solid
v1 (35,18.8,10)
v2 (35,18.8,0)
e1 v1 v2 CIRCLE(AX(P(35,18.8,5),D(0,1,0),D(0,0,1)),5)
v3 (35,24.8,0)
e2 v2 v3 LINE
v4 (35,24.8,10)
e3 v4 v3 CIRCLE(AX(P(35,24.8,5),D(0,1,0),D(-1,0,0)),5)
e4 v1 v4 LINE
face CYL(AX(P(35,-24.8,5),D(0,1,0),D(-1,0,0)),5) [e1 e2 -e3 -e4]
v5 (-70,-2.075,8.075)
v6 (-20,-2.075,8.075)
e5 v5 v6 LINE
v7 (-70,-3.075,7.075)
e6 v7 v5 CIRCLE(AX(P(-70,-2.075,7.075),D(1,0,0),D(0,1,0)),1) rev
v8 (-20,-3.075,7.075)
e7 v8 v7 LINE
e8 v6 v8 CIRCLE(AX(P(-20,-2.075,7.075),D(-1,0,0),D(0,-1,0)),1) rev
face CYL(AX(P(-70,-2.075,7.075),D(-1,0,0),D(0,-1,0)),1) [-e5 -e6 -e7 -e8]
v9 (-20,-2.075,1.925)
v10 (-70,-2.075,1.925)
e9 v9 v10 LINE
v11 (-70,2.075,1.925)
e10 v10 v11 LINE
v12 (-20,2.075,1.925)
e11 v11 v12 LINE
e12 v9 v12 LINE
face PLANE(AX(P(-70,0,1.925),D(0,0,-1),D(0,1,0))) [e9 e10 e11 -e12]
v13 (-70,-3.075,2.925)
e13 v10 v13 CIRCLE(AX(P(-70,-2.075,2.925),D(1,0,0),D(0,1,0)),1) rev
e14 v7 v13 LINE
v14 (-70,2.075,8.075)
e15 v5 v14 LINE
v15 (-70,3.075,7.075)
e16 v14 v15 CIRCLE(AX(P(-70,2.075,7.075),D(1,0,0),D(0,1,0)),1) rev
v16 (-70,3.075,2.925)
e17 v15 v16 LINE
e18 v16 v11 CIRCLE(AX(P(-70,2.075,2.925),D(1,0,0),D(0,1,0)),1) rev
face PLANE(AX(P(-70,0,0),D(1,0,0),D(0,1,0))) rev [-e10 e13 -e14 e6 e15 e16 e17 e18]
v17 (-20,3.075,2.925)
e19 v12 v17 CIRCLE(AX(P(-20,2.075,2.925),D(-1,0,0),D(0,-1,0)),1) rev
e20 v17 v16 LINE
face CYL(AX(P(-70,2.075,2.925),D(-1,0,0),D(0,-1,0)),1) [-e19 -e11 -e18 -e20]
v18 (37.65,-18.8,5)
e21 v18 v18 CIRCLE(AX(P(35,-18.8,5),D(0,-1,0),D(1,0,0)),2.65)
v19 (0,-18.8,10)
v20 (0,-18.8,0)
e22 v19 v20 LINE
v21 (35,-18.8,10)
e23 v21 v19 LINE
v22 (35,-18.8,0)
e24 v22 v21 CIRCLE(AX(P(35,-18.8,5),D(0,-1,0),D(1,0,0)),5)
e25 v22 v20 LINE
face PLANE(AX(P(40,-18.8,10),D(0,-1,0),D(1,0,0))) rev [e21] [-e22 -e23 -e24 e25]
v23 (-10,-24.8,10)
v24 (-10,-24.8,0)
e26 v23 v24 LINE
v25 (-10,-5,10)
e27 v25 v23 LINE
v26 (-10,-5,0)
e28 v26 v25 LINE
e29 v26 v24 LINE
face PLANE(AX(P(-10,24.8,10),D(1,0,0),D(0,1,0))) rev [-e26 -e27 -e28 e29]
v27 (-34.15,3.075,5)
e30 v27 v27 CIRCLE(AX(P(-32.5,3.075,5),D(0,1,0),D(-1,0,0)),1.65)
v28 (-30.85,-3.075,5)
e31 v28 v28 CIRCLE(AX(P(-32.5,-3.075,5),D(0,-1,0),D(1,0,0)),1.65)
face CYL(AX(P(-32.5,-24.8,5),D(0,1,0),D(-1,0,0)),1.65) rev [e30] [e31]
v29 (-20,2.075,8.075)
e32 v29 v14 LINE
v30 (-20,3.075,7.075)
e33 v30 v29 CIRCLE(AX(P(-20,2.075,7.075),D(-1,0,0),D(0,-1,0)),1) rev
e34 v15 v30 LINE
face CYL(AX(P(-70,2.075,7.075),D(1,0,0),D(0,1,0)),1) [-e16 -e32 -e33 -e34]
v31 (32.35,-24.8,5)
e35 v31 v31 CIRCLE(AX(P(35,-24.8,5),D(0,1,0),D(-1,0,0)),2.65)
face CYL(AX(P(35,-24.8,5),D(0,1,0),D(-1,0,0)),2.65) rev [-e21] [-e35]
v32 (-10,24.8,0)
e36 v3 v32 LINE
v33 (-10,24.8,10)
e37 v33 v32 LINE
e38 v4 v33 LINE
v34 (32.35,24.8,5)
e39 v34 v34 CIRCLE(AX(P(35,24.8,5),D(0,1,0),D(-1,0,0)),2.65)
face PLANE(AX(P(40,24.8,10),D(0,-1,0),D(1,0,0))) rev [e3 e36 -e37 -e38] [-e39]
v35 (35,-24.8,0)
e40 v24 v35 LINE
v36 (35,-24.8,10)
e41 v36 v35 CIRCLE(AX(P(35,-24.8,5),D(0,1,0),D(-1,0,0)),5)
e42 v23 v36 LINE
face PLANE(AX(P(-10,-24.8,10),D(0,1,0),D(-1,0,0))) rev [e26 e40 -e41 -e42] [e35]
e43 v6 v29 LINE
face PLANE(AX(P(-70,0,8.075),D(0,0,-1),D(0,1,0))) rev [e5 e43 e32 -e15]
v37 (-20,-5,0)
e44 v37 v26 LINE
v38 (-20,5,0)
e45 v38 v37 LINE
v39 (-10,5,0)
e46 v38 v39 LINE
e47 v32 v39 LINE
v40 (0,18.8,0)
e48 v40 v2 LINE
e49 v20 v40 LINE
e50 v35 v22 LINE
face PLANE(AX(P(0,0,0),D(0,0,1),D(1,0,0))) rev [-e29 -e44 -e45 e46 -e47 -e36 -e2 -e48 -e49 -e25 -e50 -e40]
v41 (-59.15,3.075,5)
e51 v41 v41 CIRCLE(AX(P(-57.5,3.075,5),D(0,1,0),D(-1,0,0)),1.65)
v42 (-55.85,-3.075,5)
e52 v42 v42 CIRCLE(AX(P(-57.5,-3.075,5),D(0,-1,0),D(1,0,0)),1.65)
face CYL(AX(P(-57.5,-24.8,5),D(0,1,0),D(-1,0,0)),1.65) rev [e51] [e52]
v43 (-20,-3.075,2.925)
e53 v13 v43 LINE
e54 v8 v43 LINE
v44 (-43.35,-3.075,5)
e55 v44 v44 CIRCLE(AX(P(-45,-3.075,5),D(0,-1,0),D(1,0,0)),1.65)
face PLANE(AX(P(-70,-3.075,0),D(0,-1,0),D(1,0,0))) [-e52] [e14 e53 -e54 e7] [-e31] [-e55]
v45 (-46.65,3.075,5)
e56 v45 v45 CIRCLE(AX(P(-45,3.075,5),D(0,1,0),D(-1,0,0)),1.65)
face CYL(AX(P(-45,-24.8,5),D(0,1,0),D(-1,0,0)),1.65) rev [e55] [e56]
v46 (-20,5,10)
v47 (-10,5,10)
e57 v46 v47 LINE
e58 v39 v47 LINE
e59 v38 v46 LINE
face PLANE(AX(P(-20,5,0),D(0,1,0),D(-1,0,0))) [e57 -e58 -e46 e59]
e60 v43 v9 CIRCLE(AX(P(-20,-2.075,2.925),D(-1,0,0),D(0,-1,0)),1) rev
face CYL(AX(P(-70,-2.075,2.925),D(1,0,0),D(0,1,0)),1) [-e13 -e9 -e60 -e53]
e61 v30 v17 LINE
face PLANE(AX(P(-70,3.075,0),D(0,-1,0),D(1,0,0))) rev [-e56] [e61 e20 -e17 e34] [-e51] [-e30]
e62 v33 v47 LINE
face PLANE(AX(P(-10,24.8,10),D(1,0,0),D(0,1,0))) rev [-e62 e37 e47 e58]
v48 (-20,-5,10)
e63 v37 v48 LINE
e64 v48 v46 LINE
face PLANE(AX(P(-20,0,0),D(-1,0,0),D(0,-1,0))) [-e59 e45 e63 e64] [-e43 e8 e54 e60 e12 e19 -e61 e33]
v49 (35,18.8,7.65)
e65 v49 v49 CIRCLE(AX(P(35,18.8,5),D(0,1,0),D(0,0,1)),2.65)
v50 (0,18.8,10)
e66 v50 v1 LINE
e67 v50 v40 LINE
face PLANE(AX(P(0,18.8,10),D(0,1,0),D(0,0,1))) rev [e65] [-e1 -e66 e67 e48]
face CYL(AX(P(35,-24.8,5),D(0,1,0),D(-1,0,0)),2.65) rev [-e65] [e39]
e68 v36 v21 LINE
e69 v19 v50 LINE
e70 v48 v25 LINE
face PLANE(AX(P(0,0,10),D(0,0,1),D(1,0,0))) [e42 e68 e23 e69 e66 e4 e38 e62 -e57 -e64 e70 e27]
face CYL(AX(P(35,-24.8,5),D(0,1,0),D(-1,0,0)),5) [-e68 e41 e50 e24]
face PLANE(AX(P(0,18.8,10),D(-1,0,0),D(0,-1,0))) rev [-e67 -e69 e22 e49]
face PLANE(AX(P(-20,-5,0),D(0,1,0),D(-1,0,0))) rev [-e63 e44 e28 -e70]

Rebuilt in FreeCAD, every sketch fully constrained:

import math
import FreeCAD as App
import Part
import Sketcher
from FreeCAD import Vector


def edges_at(feature, points):
    """Names of the edges that pass closest to the given points."""
    edges = feature.Shape.Edges
    near = lambda p: min(range(len(edges)), key=lambda i: edges[i].distToShape(Part.Vertex(*p))[0])
    return sorted({f"Edge{near(p) + 1}" for p in points})


def add_polygon(sketch, points):
    """Adds a closed chain of lines whose ends are joined by coincident constraints."""
    first, n = sketch.GeometryCount, len(points)
    for a, b in zip(points, points[1:] + points[:1]):
        sketch.addGeometry(Part.LineSegment(App.Vector(*a, 0), App.Vector(*b, 0)), False)
    for i in range(n):
        sketch.addConstraint(Sketcher.Constraint("Coincident", first + i, 2, first + (i + 1) % n, 1))

doc = App.newDocument("Part")
body = doc.addObject("PartDesign::Body", "Body")

# Sketch on XY plane
sketch1 = body.newObject("Sketcher::SketchObject", "Sketch")
sketch1.AttachmentSupport = (doc.getObject("XY_Plane"), [""])
sketch1.MapMode = "FlatFace"
add_polygon(sketch1, [(0, -19), (0, 19), (40, 19), (40, 25), (-10, 25), (-10, -25), (40, -25), (40, -19)])  # lines 0-7
sketch1.addConstraint([
    Sketcher.Constraint("Vertical", 0),
    Sketcher.Constraint("Horizontal", 1),
    Sketcher.Constraint("Vertical", 2),
    Sketcher.Constraint("Horizontal", 3),
    Sketcher.Constraint("Vertical", 4),
    Sketcher.Constraint("Horizontal", 5),
    Sketcher.Constraint("Vertical", 6),
    Sketcher.Constraint("Horizontal", 7),
    Sketcher.Constraint("Symmetric", 0, 2, 7, 2, -1, 1),
    Sketcher.Constraint("Symmetric", 2, 2, 5, 2, -1),
    Sketcher.Constraint("DistanceX", 1, 1, 1, 2, 40.0),
    Sketcher.Constraint("DistanceX", 3, 2, 3, 1, 50.0),
    Sketcher.Constraint("DistanceY", 2, 1, 2, 2, 6.0),
    Sketcher.Constraint("DistanceY", 0, 1, 0, 2, 37.6),
])
pad1 = body.newObject("PartDesign::Pad", "Pad")
pad1.Profile = sketch1
pad1.Length = 10

# Sketch on YZ plane
sketch2 = body.newObject("Sketcher::SketchObject", "Sketch001")
sketch2.AttachmentSupport = (doc.getObject("YZ_Plane"), [""])
sketch2.MapMode = "FlatFace"
sketch2.AttachmentOffset = App.Placement(Vector(0, 0, -10), App.Rotation())
add_polygon(sketch2, [(5, 0), (-5, 0), (-5, 10), (5, 10)])  # lines 0-3
sketch2.addConstraint([
    Sketcher.Constraint("Horizontal", 0),
    Sketcher.Constraint("Vertical", 1),
    Sketcher.Constraint("Horizontal", 2),
    Sketcher.Constraint("Vertical", 3),
    Sketcher.Constraint("Symmetric", 0, 2, 3, 2, -1, 1),
    Sketcher.Constraint("Equal", 2, 1),
    Sketcher.Constraint("DistanceX", 0, 2, 0, 1, 10.0),
])
pad2 = body.newObject("PartDesign::Pad", "Pad001")
pad2.Profile = sketch2
pad2.Length = 10
pad2.Reversed = True

# Sketch on YZ plane
sketch3 = body.newObject("Sketcher::SketchObject", "Sketch002")
sketch3.AttachmentSupport = (doc.getObject("YZ_Plane"), [""])
sketch3.MapMode = "FlatFace"
sketch3.AttachmentOffset = App.Placement(Vector(0, 0, -20), App.Rotation())
add_polygon(sketch3, [(3, 2), (-3, 2), (-3, 8), (3, 8)])  # lines 0-3
sketch3.addConstraint([
    Sketcher.Constraint("Horizontal", 0),
    Sketcher.Constraint("Vertical", 1),
    Sketcher.Constraint("Horizontal", 2),
    Sketcher.Constraint("Vertical", 3),
    Sketcher.Constraint("Equal", 2, 1),
    Sketcher.Constraint("DistanceX", 0, 2, 0, 1, 6.15),
    Sketcher.Constraint("DistanceX", 0, 2, -1, 1, 3.075),
    Sketcher.Constraint("DistanceY", -1, 1, 0, 2, 1.925),
])
pad3 = body.newObject("PartDesign::Pad", "Pad002")
pad3.Profile = sketch3
pad3.Length = 50
pad3.Reversed = True

# Sketch on XZ plane
sketch4 = body.newObject("Sketcher::SketchObject", "Sketch003")
sketch4.AttachmentSupport = (doc.getObject("XZ_Plane"), [""])
sketch4.MapMode = "FlatFace"
sketch4.AttachmentOffset = App.Placement(Vector(0, 0, -24.8), App.Rotation())
sketch4.addGeometry([
    Part.Circle(Vector(35, 5, 0), Vector(0, 0, 1), 2.6),  # 0
    Part.ArcOfCircle(Part.Circle(Vector(35, 5, 0), Vector(0, 0, 1), 5), math.radians(-90), math.radians(0)),  # 1
    Part.LineSegment(Vector(40, 5, 0), Vector(40, 0, 0)),  # 2
    Part.LineSegment(Vector(40, 0, 0), Vector(35, 0, 0)),  # 3
    Part.LineSegment(Vector(40, 10, 0), Vector(40, 5, 0)),  # 4
    Part.ArcOfCircle(Part.Circle(Vector(35, 5, 0), Vector(0, 0, 1), 5), math.radians(0), math.radians(90)),  # 5
    Part.LineSegment(Vector(35, 10, 0), Vector(40, 10, 0)),  # 6
], False)
sketch4.addConstraint([
    Sketcher.Constraint("Tangent", 1, 2, 2, 1),
    Sketcher.Constraint("Coincident", 2, 2, 3, 1),
    Sketcher.Constraint("Tangent", 3, 2, 1, 1),
    Sketcher.Constraint("Tangent", 4, 2, 5, 1),
    Sketcher.Constraint("Tangent", 5, 2, 6, 1),
    Sketcher.Constraint("Coincident", 6, 2, 4, 1),
    Sketcher.Constraint("Vertical", 2),
    Sketcher.Constraint("Horizontal", 3),
    Sketcher.Constraint("Vertical", 4),
    Sketcher.Constraint("Horizontal", 6),
    Sketcher.Constraint("Coincident", 1, 3, 0, 3),
    Sketcher.Constraint("Coincident", 5, 3, 0, 3),
    Sketcher.Constraint("Equal", 1, 5),
    Sketcher.Constraint("PointOnObject", 2, 2, -1),
    Sketcher.Constraint("Radius", 1, 5.0),
    Sketcher.Constraint("Diameter", 0, 5.3),
    Sketcher.Constraint("DistanceX", -1, 1, 0, 3, 35.0),
])
pocket1 = body.newObject("PartDesign::Pocket", "Pocket")
pocket1.Profile = sketch4
pocket1.Type = "ThroughAll"
pocket1.Reversed = True

# Sketch on XZ plane
sketch5 = body.newObject("Sketcher::SketchObject", "Sketch004")
sketch5.AttachmentSupport = (doc.getObject("XZ_Plane"), [""])
sketch5.MapMode = "FlatFace"
sketch5.AttachmentOffset = App.Placement(Vector(0, 0, -3.075), App.Rotation())
sketch5.addGeometry([
    Part.Circle(Vector(-45, 5, 0), Vector(0, 0, 1), 1.6),
    Part.Circle(Vector(-32.5, 5, 0), Vector(0, 0, 1), 1.6),
    Part.Circle(Vector(-57.5, 5, 0), Vector(0, 0, 1), 1.6),
], False)
sketch5.addConstraint([
    Sketcher.Constraint("Equal", 0, 1),
    Sketcher.Constraint("Equal", 1, 2),
    Sketcher.Constraint("Horizontal", 0, 3, 1, 3),
    Sketcher.Constraint("Horizontal", 1, 3, 2, 3),
    Sketcher.Constraint("Diameter", 0, 3.3),
    Sketcher.Constraint("DistanceX", 0, 3, -1, 1, 45.0),
    Sketcher.Constraint("DistanceY", -1, 1, 0, 3, 5.0),
    Sketcher.Constraint("DistanceX", 2, 3, 1, 3, 25.0),
    Sketcher.Constraint("DistanceX", 1, 3, -1, 1, 32.5),
])
pocket2 = body.newObject("PartDesign::Pocket", "Pocket001")
pocket2.Profile = sketch5
pocket2.Type = "ThroughAll"
pocket2.Reversed = True
doc.recompute()

fillet = body.newObject("PartDesign::Fillet", "Fillet")
fillet.Base = (pocket2, edges_at(pocket2, [
    (-45, -3.075, 1.925),
    (-45, -3.075, 8.075),
    (-45, 3.075, 8.075),
    (-45, 3.075, 1.925),
]))
fillet.Radius = 1

doc.recompute()
